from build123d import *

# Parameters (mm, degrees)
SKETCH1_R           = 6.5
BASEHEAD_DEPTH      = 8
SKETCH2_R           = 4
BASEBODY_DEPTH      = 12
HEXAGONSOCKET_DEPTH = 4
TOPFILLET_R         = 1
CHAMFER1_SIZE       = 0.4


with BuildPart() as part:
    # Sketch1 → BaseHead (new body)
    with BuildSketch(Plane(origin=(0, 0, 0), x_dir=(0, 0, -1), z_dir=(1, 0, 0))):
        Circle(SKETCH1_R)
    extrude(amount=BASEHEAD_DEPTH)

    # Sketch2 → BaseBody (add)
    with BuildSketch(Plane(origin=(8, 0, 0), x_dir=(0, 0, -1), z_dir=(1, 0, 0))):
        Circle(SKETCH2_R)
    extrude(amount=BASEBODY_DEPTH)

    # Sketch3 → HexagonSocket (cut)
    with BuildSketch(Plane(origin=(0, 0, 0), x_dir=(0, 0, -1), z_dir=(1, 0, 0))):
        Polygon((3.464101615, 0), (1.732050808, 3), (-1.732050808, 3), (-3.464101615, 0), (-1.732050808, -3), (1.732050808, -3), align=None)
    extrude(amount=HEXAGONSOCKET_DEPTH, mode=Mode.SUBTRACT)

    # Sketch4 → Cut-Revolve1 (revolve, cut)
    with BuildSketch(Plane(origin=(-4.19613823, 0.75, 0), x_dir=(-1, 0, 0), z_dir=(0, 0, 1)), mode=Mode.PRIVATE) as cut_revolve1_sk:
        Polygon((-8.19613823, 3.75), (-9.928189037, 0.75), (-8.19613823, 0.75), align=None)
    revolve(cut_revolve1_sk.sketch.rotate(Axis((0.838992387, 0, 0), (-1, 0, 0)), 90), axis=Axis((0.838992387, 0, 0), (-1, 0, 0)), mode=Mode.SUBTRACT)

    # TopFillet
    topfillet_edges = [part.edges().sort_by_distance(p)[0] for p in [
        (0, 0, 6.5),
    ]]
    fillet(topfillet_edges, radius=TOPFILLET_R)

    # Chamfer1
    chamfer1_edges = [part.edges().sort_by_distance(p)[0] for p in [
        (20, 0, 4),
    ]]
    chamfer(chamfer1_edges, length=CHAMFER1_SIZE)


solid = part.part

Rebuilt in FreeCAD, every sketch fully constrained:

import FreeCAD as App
import Part
import Sketcher

V = App.Vector
Q = App.Units.Quantity


def edges_at(feature, points):
    """Names of the edges that pass closest to the given points."""
    edges = feature.Shape.Edges
    near = lambda p: min(range(len(edges)), key=lambda i: edges[i].distToShape(Part.Vertex(*p))[0])
    return sorted({f"Edge{near(p) + 1}" for p in points})

doc = App.newDocument("Part")
body = doc.addObject("PartDesign::Body", "Body")

# Sketch on YZ plane
sketch1 = doc.addObject("Sketcher::SketchObject", "Sketch")
body.addObject(sketch1)
sketch1.AttachmentSupport = (doc.YZ_Plane, [""])
sketch1.MapMode = "FlatFace"
sketch1.addGeometry(Part.Circle(V(0, 0, 0), V(0, 0, 1), 6.5), False)
sketch1.addConstraint([
    Sketcher.Constraint("Coincident", 0, 3, -1, 1),
    Sketcher.Constraint("Diameter", 0, 13.0),
])
pad1 = doc.addObject("PartDesign::Pad", "Pad")
body.addObject(pad1)
pad1.Profile = sketch1
pad1.Length = 8

# Sketch on YZ plane
sketch2 = doc.addObject("Sketcher::SketchObject", "Sketch001")
body.addObject(sketch2)
sketch2.AttachmentSupport = (doc.YZ_Plane, [""])
sketch2.MapMode = "FlatFace"
sketch2.AttachmentOffset = App.Placement(V(0, 0, 8), App.Rotation())
sketch2.addGeometry(Part.Circle(V(0, 0, 0), V(0, 0, 1), 4), False)
sketch2.addConstraint([
    Sketcher.Constraint("Coincident", 0, 3, -1, 1),
    Sketcher.Constraint("Diameter", 0, 8.0),
])
pad2 = doc.addObject("PartDesign::Pad", "Pad001")
body.addObject(pad2)
pad2.Profile = sketch2
pad2.Length = 12

# Sketch on YZ plane
sketch3 = doc.addObject("Sketcher::SketchObject", "Sketch002")
body.addObject(sketch3)
sketch3.AttachmentSupport = (doc.YZ_Plane, [""])
sketch3.MapMode = "FlatFace"
sketch3.addGeometry([
    Part.LineSegment(V(0, -3.464102, 0), V(3, -1.732051, 0)),  # 0
    Part.LineSegment(V(3, -1.732051, 0), V(3, 1.732051, 0)),  # 1
    Part.LineSegment(V(3, 1.732051, 0), V(0, 3.464102, 0)),  # 2
    Part.LineSegment(V(0, 3.464102, 0), V(-3, 1.732051, 0)),  # 3
    Part.LineSegment(V(-3, 1.732051, 0), V(-3, -1.732051, 0)),  # 4
    Part.LineSegment(V(-3, -1.732051, 0), V(0, -3.464102, 0)),  # 5
], False)
sketch3.addConstraint([
    Sketcher.Constraint("Coincident", 0, 2, 1, 1),
    Sketcher.Constraint("Coincident", 1, 2, 2, 1),
    Sketcher.Constraint("Coincident", 2, 2, 3, 1),
    Sketcher.Constraint("Coincident", 3, 2, 4, 1),
    Sketcher.Constraint("Coincident", 4, 2, 5, 1),
    Sketcher.Constraint("Coincident", 5, 2, 0, 1),
    Sketcher.Constraint("Vertical", 1),
    Sketcher.Constraint("Vertical", 4),
    Sketcher.Constraint("Symmetric", 0, 2, 3, 2, -1, 1),
    Sketcher.Constraint("Symmetric", 2, 2, 5, 2, -1, 1),
    Sketcher.Constraint("PointOnObject", 2, 2, -2),
    Sketcher.Constraint("Parallel", 2, 5),
    Sketcher.Constraint("Horizontal", 1, 2, 3, 2),
    Sketcher.Constraint("Angle", 0, Q("30 deg")),
    Sketcher.Constraint("DistanceX", -1, 1, 0, 2, 3.0),
    Sketcher.Constraint("DistanceY", 1, 1, 1, 2, 3.464102),
])
pocket1 = doc.addObject("PartDesign::Pocket", "Pocket")
body.addObject(pocket1)
pocket1.Profile = sketch3
pocket1.Length = 4
pocket1.Reversed = True

# Sketch on XY plane
sketch4 = doc.addObject("Sketcher::SketchObject", "Sketch003")
body.addObject(sketch4)
sketch4.AttachmentSupport = (doc.XY_Plane, [""])
sketch4.MapMode = "FlatFace"
sketch4.addGeometry([
    Part.LineSegment(V(4, -3, 0), V(5.732051, 0, 0)),
    Part.LineSegment(V(5.732051, 0, 0), V(4, 0, 0)),
    Part.LineSegment(V(4, 0, 0), V(4, -3, 0)),
], False)
sketch4.addConstraint([
    Sketcher.Constraint("Coincident", 0, 2, 1, 1),
    Sketcher.Constraint("Coincident", 1, 2, 2, 1),
    Sketcher.Constraint("Coincident", 2, 2, 0, 1),
    Sketcher.Constraint("Horizontal", 1),
    Sketcher.Constraint("Vertical", 2),
    Sketcher.Constraint("PointOnObject", 0, 2, -1),
    Sketcher.Constraint("DistanceY", 2, 2, 2, 1, 3.0),
    Sketcher.Constraint("Angle", 0, Q("60 deg")),
    Sketcher.Constraint("DistanceX", -1, 1, 1, 2, 4.0),
])
groove = doc.addObject("PartDesign::Groove", "Groove")
body.addObject(groove)
groove.Profile = sketch4
groove.ReferenceAxis = (sketch4, ["H_Axis"])
groove.Angle = 360
doc.recompute()

fillet = doc.addObject("PartDesign::Fillet", "Fillet")
body.addObject(fillet)
fillet.Base = (groove, edges_at(groove, [(0, 0, 6.5)]))
fillet.Radius = 1
doc.recompute()

chamfer = doc.addObject("PartDesign::Chamfer", "Chamfer")
body.addObject(chamfer)
chamfer.Base = (fillet, edges_at(fillet, [(20, 0, 4)]))
chamfer.Size = 0.4

doc.recompute()
